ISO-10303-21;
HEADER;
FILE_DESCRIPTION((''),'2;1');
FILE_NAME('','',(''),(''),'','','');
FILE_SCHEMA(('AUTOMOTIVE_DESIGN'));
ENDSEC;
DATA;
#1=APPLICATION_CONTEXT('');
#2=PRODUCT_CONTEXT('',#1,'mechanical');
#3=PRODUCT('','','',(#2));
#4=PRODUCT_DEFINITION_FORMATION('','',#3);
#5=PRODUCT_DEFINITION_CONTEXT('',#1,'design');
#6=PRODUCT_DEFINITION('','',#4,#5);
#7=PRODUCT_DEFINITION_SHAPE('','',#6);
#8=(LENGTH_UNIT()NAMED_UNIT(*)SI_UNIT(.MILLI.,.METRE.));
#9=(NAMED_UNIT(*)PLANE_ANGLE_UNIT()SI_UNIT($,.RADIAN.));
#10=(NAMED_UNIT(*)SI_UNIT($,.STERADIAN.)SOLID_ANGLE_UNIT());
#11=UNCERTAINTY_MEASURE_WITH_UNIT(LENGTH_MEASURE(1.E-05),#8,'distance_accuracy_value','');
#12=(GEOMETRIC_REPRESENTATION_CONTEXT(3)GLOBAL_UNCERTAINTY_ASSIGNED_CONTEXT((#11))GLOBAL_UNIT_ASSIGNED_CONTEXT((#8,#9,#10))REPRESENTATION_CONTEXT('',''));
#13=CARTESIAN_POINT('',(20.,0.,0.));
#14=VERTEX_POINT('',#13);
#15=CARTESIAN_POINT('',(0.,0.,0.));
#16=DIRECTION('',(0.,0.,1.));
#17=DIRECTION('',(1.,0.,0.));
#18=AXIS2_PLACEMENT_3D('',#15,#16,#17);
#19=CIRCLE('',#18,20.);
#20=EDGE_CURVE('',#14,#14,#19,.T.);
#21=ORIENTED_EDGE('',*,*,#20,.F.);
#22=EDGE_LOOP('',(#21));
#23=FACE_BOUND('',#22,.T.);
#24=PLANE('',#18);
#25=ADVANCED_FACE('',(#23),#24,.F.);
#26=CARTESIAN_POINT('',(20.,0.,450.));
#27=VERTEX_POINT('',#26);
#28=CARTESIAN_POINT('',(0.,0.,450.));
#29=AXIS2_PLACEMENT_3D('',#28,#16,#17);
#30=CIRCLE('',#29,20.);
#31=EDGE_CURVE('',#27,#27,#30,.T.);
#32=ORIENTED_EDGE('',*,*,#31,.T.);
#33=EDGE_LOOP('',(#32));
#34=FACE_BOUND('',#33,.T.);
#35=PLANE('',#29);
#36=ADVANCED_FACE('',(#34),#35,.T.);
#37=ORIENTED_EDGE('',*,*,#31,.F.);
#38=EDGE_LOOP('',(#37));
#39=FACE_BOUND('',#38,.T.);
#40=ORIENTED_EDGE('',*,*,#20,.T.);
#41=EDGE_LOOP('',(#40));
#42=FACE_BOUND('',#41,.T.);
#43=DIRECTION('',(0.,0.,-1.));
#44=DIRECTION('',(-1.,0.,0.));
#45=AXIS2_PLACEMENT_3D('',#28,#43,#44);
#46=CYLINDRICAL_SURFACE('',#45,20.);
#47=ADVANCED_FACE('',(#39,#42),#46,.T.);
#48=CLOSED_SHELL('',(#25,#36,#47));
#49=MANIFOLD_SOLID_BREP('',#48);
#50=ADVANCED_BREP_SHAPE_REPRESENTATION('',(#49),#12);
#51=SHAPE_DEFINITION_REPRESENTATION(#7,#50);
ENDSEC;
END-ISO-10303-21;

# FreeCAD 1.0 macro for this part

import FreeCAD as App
import Part
import Sketcher
from FreeCAD import Vector
Q = App.Units.Quantity

doc = App.newDocument("Part")
body = doc.addObject("PartDesign::Body", "Body")

sketch1 = doc.addObject("Sketcher::SketchObject", "Sketch")
body.addObject(sketch1)
sketch1.AttachmentSupport = (doc.XY_Plane, [""])
sketch1.MapMode = "FlatFace"
sketch1.addGeometry(Part.Circle(Vector(0, 0, 0), Vector(0, 0, 1), 20), False)
sketch1.addConstraint([
    Sketcher.Constraint("Coincident", 0, 3, -1, 1),
    Sketcher.Constraint("Diameter", 0, Q("40 mm")),
])
pad1 = doc.addObject("PartDesign::Pad", "Pad")
body.addObject(pad1)
pad1.Profile = sketch1
pad1.Length = 450

doc.recompute()
